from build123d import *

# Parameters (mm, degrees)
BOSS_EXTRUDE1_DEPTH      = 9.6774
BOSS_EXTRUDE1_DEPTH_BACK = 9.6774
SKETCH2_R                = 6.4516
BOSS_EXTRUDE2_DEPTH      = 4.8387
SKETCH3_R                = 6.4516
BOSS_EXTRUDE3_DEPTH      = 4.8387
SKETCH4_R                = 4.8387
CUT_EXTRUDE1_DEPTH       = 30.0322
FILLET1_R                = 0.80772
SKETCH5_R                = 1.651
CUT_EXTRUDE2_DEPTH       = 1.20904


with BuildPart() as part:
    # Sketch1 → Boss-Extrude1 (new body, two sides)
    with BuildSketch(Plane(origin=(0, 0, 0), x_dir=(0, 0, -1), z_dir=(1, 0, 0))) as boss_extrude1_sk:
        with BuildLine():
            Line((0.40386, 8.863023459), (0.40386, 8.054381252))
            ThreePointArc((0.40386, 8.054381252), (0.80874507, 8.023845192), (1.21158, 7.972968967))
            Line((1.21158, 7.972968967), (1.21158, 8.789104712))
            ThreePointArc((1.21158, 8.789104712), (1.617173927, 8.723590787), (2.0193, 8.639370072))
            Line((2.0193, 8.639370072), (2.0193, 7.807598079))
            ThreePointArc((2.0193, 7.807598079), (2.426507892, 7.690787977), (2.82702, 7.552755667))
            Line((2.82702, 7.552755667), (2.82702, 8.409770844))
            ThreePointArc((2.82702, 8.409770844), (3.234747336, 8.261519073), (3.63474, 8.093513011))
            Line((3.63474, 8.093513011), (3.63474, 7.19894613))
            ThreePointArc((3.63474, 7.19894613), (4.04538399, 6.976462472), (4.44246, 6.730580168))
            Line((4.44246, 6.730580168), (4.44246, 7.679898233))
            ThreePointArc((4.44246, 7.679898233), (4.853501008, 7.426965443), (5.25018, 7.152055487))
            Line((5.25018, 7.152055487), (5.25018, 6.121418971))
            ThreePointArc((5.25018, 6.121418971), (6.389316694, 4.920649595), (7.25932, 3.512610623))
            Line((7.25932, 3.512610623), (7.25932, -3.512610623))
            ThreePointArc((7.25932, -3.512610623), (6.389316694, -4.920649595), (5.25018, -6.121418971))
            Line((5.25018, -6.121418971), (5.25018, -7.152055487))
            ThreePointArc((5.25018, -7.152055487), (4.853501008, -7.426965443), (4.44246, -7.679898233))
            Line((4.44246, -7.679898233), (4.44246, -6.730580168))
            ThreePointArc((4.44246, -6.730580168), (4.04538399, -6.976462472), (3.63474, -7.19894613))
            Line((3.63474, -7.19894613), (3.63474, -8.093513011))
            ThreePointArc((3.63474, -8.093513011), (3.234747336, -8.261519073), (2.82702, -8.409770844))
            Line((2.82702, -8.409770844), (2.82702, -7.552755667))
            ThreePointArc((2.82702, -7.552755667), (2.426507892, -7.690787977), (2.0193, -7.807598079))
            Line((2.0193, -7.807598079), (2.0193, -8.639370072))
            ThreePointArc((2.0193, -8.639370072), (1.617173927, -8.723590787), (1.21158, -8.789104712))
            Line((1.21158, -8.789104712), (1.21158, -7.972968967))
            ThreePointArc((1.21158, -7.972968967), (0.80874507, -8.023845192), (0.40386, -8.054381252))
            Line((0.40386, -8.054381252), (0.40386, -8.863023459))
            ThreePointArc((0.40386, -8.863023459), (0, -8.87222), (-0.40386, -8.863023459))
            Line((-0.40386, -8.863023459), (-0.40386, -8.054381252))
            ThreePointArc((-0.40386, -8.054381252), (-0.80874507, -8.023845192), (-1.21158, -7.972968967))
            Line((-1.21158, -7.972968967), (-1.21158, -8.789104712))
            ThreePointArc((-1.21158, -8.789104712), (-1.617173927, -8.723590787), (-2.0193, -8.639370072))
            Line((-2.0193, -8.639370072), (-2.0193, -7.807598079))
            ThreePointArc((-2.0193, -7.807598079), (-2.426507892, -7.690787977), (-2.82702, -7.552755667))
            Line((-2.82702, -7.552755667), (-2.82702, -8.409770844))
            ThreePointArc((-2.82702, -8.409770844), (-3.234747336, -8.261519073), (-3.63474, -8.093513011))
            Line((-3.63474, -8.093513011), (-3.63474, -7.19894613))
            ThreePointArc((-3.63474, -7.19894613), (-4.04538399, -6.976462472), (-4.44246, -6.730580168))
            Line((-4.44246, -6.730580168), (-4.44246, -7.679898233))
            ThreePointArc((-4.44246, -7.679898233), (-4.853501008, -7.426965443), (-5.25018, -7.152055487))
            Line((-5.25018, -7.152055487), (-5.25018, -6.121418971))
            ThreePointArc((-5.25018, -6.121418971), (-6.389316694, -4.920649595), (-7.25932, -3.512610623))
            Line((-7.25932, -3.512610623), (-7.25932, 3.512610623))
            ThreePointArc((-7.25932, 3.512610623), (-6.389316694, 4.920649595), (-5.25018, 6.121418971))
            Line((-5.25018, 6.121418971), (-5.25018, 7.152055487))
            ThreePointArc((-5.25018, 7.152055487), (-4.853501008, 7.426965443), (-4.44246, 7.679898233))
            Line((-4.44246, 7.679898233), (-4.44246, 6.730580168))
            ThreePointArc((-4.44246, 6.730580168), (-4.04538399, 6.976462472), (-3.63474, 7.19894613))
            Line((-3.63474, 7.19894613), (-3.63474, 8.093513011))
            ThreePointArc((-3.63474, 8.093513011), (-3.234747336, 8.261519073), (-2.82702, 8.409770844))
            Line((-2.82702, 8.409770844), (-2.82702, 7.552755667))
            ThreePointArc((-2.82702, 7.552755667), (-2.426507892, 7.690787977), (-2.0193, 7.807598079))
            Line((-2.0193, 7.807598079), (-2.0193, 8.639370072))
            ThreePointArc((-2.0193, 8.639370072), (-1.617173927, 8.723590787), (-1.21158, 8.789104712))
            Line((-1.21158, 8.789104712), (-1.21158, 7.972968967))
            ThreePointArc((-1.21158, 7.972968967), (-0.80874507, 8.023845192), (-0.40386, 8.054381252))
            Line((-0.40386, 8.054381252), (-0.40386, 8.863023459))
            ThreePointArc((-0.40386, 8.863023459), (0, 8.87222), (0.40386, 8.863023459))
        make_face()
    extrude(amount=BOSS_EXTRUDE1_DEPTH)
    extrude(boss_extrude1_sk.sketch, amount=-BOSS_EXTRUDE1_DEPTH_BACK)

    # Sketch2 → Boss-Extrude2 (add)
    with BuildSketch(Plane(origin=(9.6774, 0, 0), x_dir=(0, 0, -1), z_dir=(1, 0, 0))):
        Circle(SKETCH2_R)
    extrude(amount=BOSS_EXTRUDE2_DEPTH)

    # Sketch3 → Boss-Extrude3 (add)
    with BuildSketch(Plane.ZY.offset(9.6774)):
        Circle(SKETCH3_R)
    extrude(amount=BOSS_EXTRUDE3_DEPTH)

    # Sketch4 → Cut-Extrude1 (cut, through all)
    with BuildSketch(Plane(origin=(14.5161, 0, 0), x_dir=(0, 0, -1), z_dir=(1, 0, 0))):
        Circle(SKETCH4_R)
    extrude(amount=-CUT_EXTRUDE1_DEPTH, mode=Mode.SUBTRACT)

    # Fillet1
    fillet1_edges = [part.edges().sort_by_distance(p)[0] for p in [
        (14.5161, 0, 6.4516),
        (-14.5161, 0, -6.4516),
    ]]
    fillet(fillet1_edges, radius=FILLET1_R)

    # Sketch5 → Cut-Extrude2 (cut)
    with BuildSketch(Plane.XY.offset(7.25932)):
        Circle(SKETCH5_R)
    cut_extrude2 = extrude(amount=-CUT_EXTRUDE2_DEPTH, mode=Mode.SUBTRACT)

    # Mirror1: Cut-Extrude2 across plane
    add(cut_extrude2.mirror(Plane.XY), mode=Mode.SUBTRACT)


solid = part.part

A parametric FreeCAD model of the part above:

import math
import FreeCAD as App
import Part
import Sketcher

V = App.Vector
Q = App.Units.Quantity


def edges_at(feature, points):
    """Names of the edges that pass closest to the given points."""
    edges = feature.Shape.Edges
    near = lambda p: min(range(len(edges)), key=lambda i: edges[i].distToShape(Part.Vertex(*p))[0])
    return sorted({f"Edge{near(p) + 1}" for p in points})

doc = App.newDocument("Part")
params = doc.addObject("Spreadsheet::Sheet", "Params")
for row, (alias, value) in enumerate([
    ("pad1_length", "0.381 in"),
    ("pad1_length2", "0.381 in"),
    ("sketch2_diameter", "0.508 in"),
    ("pad2_length", "0.1905 in"),
    ("sketch3_diameter", "0.508 in"),
    ("pad3_length", "0.1905 in"),
    ("sketch4_diameter", "0.381 in"),
    ("fillet_radius", "0.0318 in"),
    ("sketch5_diameter", "0.13 in"),
    ("pocket2_length", "0.0476 in"),
], start=1):
    params.set(f"A{row}", alias)
    params.set(f"B{row}", "=" + value)
    params.setAlias(f"B{row}", alias)

body = doc.addObject("PartDesign::Body", "Body")

sketch1 = doc.addObject("Sketcher::SketchObject", "Sketch")
body.addObject(sketch1)
sketch1.AttachmentSupport = (doc.YZ_Plane, [""])
sketch1.MapMode = "FlatFace"
sketch1.addGeometry([
    Part.LineSegment(V(8.1, -0.4, 0), V(8.9, -0.4, 0)),
    Part.ArcOfCircle(Part.Circle(V(0, 0, 0), V(0, 0, 1), 8.9), math.radians(-2.61), math.radians(2.61)),
    Part.LineSegment(V(8.9, 0.4, 0), V(8.1, 0.4, 0)),
    Part.ArcOfCircle(Part.Circle(V(0, 0, 0), V(0, 0, 1), 8.1), math.radians(2.87), math.radians(8.64)),
    Part.LineSegment(V(8, 1.2, 0), V(8.8, 1.2, 0)),
    Part.ArcOfCircle(Part.Circle(V(0, 0, 0), V(0, 0, 1), 8.9), math.radians(7.85), math.radians(13.16)),
    Part.LineSegment(V(8.6, 2, 0), V(7.8, 2, 0)),
    Part.ArcOfCircle(Part.Circle(V(0, 0, 0), V(0, 0, 1), 8.1), math.radians(14.5), math.radians(20.52)),
    Part.LineSegment(V(7.6, 2.8, 0), V(8.4, 2.8, 0)),
    Part.ArcOfCircle(Part.Circle(V(0, 0, 0), V(0, 0, 1), 8.9), math.radians(18.58), math.radians(24.18)),
    Part.LineSegment(V(8.1, 3.6, 0), V(7.2, 3.6, 0)),
    Part.ArcOfCircle(Part.Circle(V(0, 0, 0), V(0, 0, 1), 8.1), math.radians(26.79), math.radians(33.43)),
    Part.LineSegment(V(6.7, 4.4, 0), V(7.7, 4.4, 0)),
    Part.ArcOfCircle(Part.Circle(V(0, 0, 0), V(0, 0, 1), 8.9), math.radians(30.05), math.radians(36.28)),
    Part.LineSegment(V(7.2, 5.3, 0), V(6.1, 5.3, 0)),
    Part.ArcOfCircle(Part.Circle(V(0, 0, 0), V(0, 0, 1), 8.1), math.radians(41), math.radians(64)),
    Part.LineSegment(V(3.5, 7.3, 0), V(-3.5, 7.3, 0)),
    Part.ArcOfCircle(Part.Circle(V(0, 0, 0), V(0, 0, 1), 8.1), math.radians(116), math.radians(139)),
    Part.LineSegment(V(-6.1, 5.3, 0), V(-7.2, 5.3, 0)),
    Part.ArcOfCircle(Part.Circle(V(0, 0, 0), V(0, 0, 1), 8.9), math.radians(143.72), math.radians(149.95)),
    Part.LineSegment(V(-7.7, 4.4, 0), V(-6.7, 4.4, 0)),
    Part.ArcOfCircle(Part.Circle(V(0, 0, 0), V(0, 0, 1), 8.1), math.radians(146.57), math.radians(153.21)),
    Part.LineSegment(V(-7.2, 3.6, 0), V(-8.1, 3.6, 0)),
    Part.ArcOfCircle(Part.Circle(V(0, 0, 0), V(0, 0, 1), 8.9), math.radians(155.82), math.radians(161.42)),
    Part.LineSegment(V(-8.4, 2.8, 0), V(-7.6, 2.8, 0)),
    Part.ArcOfCircle(Part.Circle(V(0, 0, 0), V(0, 0, 1), 8.1), math.radians(159.48), math.radians(165.5)),
    Part.LineSegment(V(-7.8, 2, 0), V(-8.6, 2, 0)),
    Part.ArcOfCircle(Part.Circle(V(0, 0, 0), V(0, 0, 1), 8.9), math.radians(166.84), math.radians(172.15)),
    Part.LineSegment(V(-8.8, 1.2, 0), V(-8, 1.2, 0)),
    Part.ArcOfCircle(Part.Circle(V(0, 0, 0), V(0, 0, 1), 8.1), math.radians(171.36), math.radians(177.13)),
    Part.LineSegment(V(-8.1, 0.4, 0), V(-8.9, 0.4, 0)),
    Part.ArcOfCircle(Part.Circle(V(0, 0, 0), V(0, 0, 1), 8.9), math.radians(177.39), math.radians(182.61)),
    Part.LineSegment(V(-8.9, -0.4, 0), V(-8.1, -0.4, 0)),
    Part.ArcOfCircle(Part.Circle(V(0, 0, 0), V(0, 0, 1), 8.1), math.radians(-177.13), math.radians(-171.36)),
    Part.LineSegment(V(-8, -1.2, 0), V(-8.8, -1.2, 0)),
    Part.ArcOfCircle(Part.Circle(V(0, 0, 0), V(0, 0, 1), 8.9), math.radians(-172.15), math.radians(-166.84)),
    Part.LineSegment(V(-8.6, -2, 0), V(-7.8, -2, 0)),
    Part.ArcOfCircle(Part.Circle(V(0, 0, 0), V(0, 0, 1), 8.1), math.radians(-165.5), math.radians(-159.48)),
    Part.LineSegment(V(-7.6, -2.8, 0), V(-8.4, -2.8, 0)),
    Part.ArcOfCircle(Part.Circle(V(0, 0, 0), V(0, 0, 1), 8.9), math.radians(-161.42), math.radians(-155.82)),
    Part.LineSegment(V(-8.1, -3.6, 0), V(-7.2, -3.6, 0)),
    Part.ArcOfCircle(Part.Circle(V(0, 0, 0), V(0, 0, 1), 8.1), math.radians(-153.21), math.radians(-146.57)),
    Part.LineSegment(V(-6.7, -4.4, 0), V(-7.7, -4.4, 0)),
    Part.ArcOfCircle(Part.Circle(V(0, 0, 0), V(0, 0, 1), 8.9), math.radians(-149.95), math.radians(-143.72)),
    Part.LineSegment(V(-7.2, -5.3, 0), V(-6.1, -5.3, 0)),
    Part.ArcOfCircle(Part.Circle(V(0, 0, 0), V(0, 0, 1), 8.1), math.radians(-139), math.radians(-116)),
    Part.LineSegment(V(-3.5, -7.3, 0), V(3.5, -7.3, 0)),
    Part.ArcOfCircle(Part.Circle(V(0, 0, 0), V(0, 0, 1), 8.1), math.radians(-64), math.radians(-41)),
    Part.LineSegment(V(6.1, -5.3, 0), V(7.2, -5.3, 0)),
    Part.ArcOfCircle(Part.Circle(V(0, 0, 0), V(0, 0, 1), 8.9), math.radians(-36.28), math.radians(-30.05)),
    Part.LineSegment(V(7.7, -4.4, 0), V(6.7, -4.4, 0)),
    Part.ArcOfCircle(Part.Circle(V(0, 0, 0), V(0, 0, 1), 8.1), math.radians(-33.43), math.radians(-26.79)),
    Part.LineSegment(V(7.2, -3.6, 0), V(8.1, -3.6, 0)),
    Part.ArcOfCircle(Part.Circle(V(0, 0, 0), V(0, 0, 1), 8.9), math.radians(-24.18), math.radians(-18.58)),
    Part.LineSegment(V(8.4, -2.8, 0), V(7.6, -2.8, 0)),
    Part.ArcOfCircle(Part.Circle(V(0, 0, 0), V(0, 0, 1), 8.1), math.radians(-20.52), math.radians(-14.5)),
    Part.LineSegment(V(7.8, -2, 0), V(8.6, -2, 0)),
    Part.ArcOfCircle(Part.Circle(V(0, 0, 0), V(0, 0, 1), 8.9), math.radians(-13.16), math.radians(-7.85)),
    Part.LineSegment(V(8.8, -1.2, 0), V(8, -1.2, 0)),
    Part.ArcOfCircle(Part.Circle(V(0, 0, 0), V(0, 0, 1), 8.1), math.radians(-8.64), math.radians(-2.87)),
], False)
sketch1.addConstraint([
    Sketcher.Constraint("Coincident", 0, 2, 1, 1),
    Sketcher.Constraint("Coincident", 1, 2, 2, 1),
    Sketcher.Constraint("Coincident", 2, 2, 3, 1),
    Sketcher.Constraint("Coincident", 3, 2, 4, 1),
    Sketcher.Constraint("Coincident", 4, 2, 5, 1),
    Sketcher.Constraint("Coincident", 5, 2, 6, 1),
    Sketcher.Constraint("Coincident", 6, 2, 7, 1),
    Sketcher.Constraint("Coincident", 7, 2, 8, 1),
    Sketcher.Constraint("Coincident", 8, 2, 9, 1),
    Sketcher.Constraint("Coincident", 9, 2, 10, 1),
    Sketcher.Constraint("Coincident", 10, 2, 11, 1),
    Sketcher.Constraint("Coincident", 11, 2, 12, 1),
    Sketcher.Constraint("Coincident", 12, 2, 13, 1),
    Sketcher.Constraint("Coincident", 13, 2, 14, 1),
    Sketcher.Constraint("Coincident", 14, 2, 15, 1),
    Sketcher.Constraint("Coincident", 15, 2, 16, 1),
    Sketcher.Constraint("Coincident", 16, 2, 17, 1),
    Sketcher.Constraint("Coincident", 17, 2, 18, 1),
    Sketcher.Constraint("Coincident", 18, 2, 19, 1),
    Sketcher.Constraint("Coincident", 19, 2, 20, 1),
    Sketcher.Constraint("Coincident", 20, 2, 21, 1),
    Sketcher.Constraint("Coincident", 21, 2, 22, 1),
    Sketcher.Constraint("Coincident", 22, 2, 23, 1),
    Sketcher.Constraint("Coincident", 23, 2, 24, 1),
    Sketcher.Constraint("Coincident", 24, 2, 25, 1),
    Sketcher.Constraint("Coincident", 25, 2, 26, 1),
    Sketcher.Constraint("Coincident", 26, 2, 27, 1),
    Sketcher.Constraint("Coincident", 27, 2, 28, 1),
    Sketcher.Constraint("Coincident", 28, 2, 29, 1),
    Sketcher.Constraint("Coincident", 29, 2, 30, 1),
    Sketcher.Constraint("Coincident", 30, 2, 31, 1),
    Sketcher.Constraint("Coincident", 31, 2, 32, 1),
    Sketcher.Constraint("Coincident", 32, 2, 33, 1),
    Sketcher.Constraint("Coincident", 33, 2, 34, 1),
    Sketcher.Constraint("Coincident", 34, 2, 35, 1),
    Sketcher.Constraint("Coincident", 35, 2, 36, 1),
    Sketcher.Constraint("Coincident", 36, 2, 37, 1),
    Sketcher.Constraint("Coincident", 37, 2, 38, 1),
    Sketcher.Constraint("Coincident", 38, 2, 39, 1),
    Sketcher.Constraint("Coincident", 39, 2, 40, 1),
    Sketcher.Constraint("Coincident", 40, 2, 41, 1),
    Sketcher.Constraint("Coincident", 41, 2, 42, 1),
    Sketcher.Constraint("Coincident", 42, 2, 43, 1),
    Sketcher.Constraint("Coincident", 43, 2, 44, 1),
    Sketcher.Constraint("Coincident", 44, 2, 45, 1),
    Sketcher.Constraint("Coincident", 45, 2, 46, 1),
    Sketcher.Constraint("Coincident", 46, 2, 47, 1),
    Sketcher.Constraint("Coincident", 47, 2, 48, 1),
    Sketcher.Constraint("Coincident", 48, 2, 49, 1),
    Sketcher.Constraint("Coincident", 49, 2, 50, 1),
    Sketcher.Constraint("Coincident", 50, 2, 51, 1),
    Sketcher.Constraint("Coincident", 51, 2, 52, 1),
    Sketcher.Constraint("Coincident", 52, 2, 53, 1),
    Sketcher.Constraint("Coincident", 53, 2, 54, 1),
    Sketcher.Constraint("Coincident", 54, 2, 55, 1),
    Sketcher.Constraint("Coincident", 55, 2, 56, 1),
    Sketcher.Constraint("Coincident", 56, 2, 57, 1),
    Sketcher.Constraint("Coincident", 57, 2, 58, 1),
    Sketcher.Constraint("Coincident", 58, 2, 59, 1),
    Sketcher.Constraint("Coincident", 59, 2, 0, 1),
    Sketcher.Constraint("Horizontal", 0),
    Sketcher.Constraint("Horizontal", 2),
    Sketcher.Constraint("Horizontal", 4),
    Sketcher.Constraint("Horizontal", 6),
    Sketcher.Constraint("Horizontal", 8),
    Sketcher.Constraint("Horizontal", 10),
    Sketcher.Constraint("Horizontal", 12),
    Sketcher.Constraint("Horizontal", 14),
    Sketcher.Constraint("Horizontal", 16),
    Sketcher.Constraint("Horizontal", 18),
    Sketcher.Constraint("Horizontal", 20),
    Sketcher.Constraint("Horizontal", 22),
    Sketcher.Constraint("Horizontal", 24),
    Sketcher.Constraint("Horizontal", 26),
    Sketcher.Constraint("Horizontal", 28),
    Sketcher.Constraint("Horizontal", 30),
    Sketcher.Constraint("Horizontal", 32),
    Sketcher.Constraint("Horizontal", 34),
    Sketcher.Constraint("Horizontal", 36),
    Sketcher.Constraint("Horizontal", 38),
    Sketcher.Constraint("Horizontal", 40),
    Sketcher.Constraint("Horizontal", 42),
    Sketcher.Constraint("Horizontal", 44),
    Sketcher.Constraint("Horizontal", 46),
    Sketcher.Constraint("Horizontal", 48),
    Sketcher.Constraint("Horizontal", 50),
    Sketcher.Constraint("Horizontal", 52),
    Sketcher.Constraint("Horizontal", 54),
    Sketcher.Constraint("Horizontal", 56),
    Sketcher.Constraint("Horizontal", 58),
    Sketcher.Constraint("Coincident", 1, 3, -1, 1),
    Sketcher.Constraint("Coincident", 3, 3, -1, 1),
    Sketcher.Constraint("Coincident", 5, 3, -1, 1),
    Sketcher.Constraint("Coincident", 7, 3, -1, 1),
    Sketcher.Constraint("Coincident", 9, 3, -1, 1),
    Sketcher.Constraint("Coincident", 11, 3, -1, 1),
    Sketcher.Constraint("Coincident", 13, 3, -1, 1),
    Sketcher.Constraint("Coincident", 15, 3, -1, 1),
    Sketcher.Constraint("Coincident", 17, 3, -1, 1),
    Sketcher.Constraint("Coincident", 19, 3, -1, 1),
    Sketcher.Constraint("Coincident", 21, 3, -1, 1),
    Sketcher.Constraint("Coincident", 23, 3, -1, 1),
    Sketcher.Constraint("Coincident", 25, 3, -1, 1),
    Sketcher.Constraint("Coincident", 27, 3, -1, 1),
    Sketcher.Constraint("Coincident", 29, 3, -1, 1),
    Sketcher.Constraint("Coincident", 31, 3, -1, 1),
    Sketcher.Constraint("Coincident", 33, 3, -1, 1),
    Sketcher.Constraint("Coincident", 35, 3, -1, 1),
    Sketcher.Constraint("Coincident", 37, 3, -1, 1),
    Sketcher.Constraint("Coincident", 39, 3, -1, 1),
    Sketcher.Constraint("Coincident", 41, 3, -1, 1),
    Sketcher.Constraint("Coincident", 43, 3, -1, 1),
    Sketcher.Constraint("Coincident", 45, 3, -1, 1),
    Sketcher.Constraint("Coincident", 47, 3, -1, 1),
    Sketcher.Constraint("Coincident", 49, 3, -1, 1),
    Sketcher.Constraint("Coincident", 51, 3, -1, 1),
    Sketcher.Constraint("Coincident", 53, 3, -1, 1),
    Sketcher.Constraint("Coincident", 55, 3, -1, 1),
    Sketcher.Constraint("Coincident", 57, 3, -1, 1),
    Sketcher.Constraint("Coincident", 59, 3, -1, 1),
    Sketcher.Constraint("Equal", 1, 5),
    Sketcher.Constraint("Equal", 3, 7),
    Sketcher.Constraint("Equal", 5, 9),
    Sketcher.Constraint("Equal", 7, 11),
    Sketcher.Constraint("Equal", 9, 13),
    Sketcher.Constraint("Equal", 11, 15),
    Sketcher.Constraint("Equal", 15, 17),
    Sketcher.Constraint("Equal", 13, 19),
    Sketcher.Constraint("Equal", 17, 21),
    Sketcher.Constraint("Equal", 19, 23),
    Sketcher.Constraint("Equal", 21, 25),
    Sketcher.Constraint("Equal", 23, 27),
    Sketcher.Constraint("Equal", 25, 29),
    Sketcher.Constraint("Equal", 27, 31),
    Sketcher.Constraint("Equal", 29, 33),
    Sketcher.Constraint("Equal", 31, 35),
    Sketcher.Constraint("Equal", 33, 37),
    Sketcher.Constraint("Equal", 35, 39),
    Sketcher.Constraint("Equal", 37, 41),
    Sketcher.Constraint("Equal", 39, 43),
    Sketcher.Constraint("Equal", 41, 45),
    Sketcher.Constraint("Equal", 45, 47),
    Sketcher.Constraint("Equal", 43, 49),
    Sketcher.Constraint("Equal", 47, 51),
    Sketcher.Constraint("Equal", 49, 53),
    Sketcher.Constraint("Equal", 51, 55),
    Sketcher.Constraint("Equal", 53, 57),
    Sketcher.Constraint("Equal", 55, 59),
    Sketcher.Constraint("Horizontal", 14, 2, 17, 2),
    Sketcher.Constraint("Horizontal", 12, 2, 19, 2),
    Sketcher.Constraint("Horizontal", 10, 2, 21, 2),
    Sketcher.Constraint("Horizontal", 8, 2, 23, 2),
    Sketcher.Constraint("Horizontal", 6, 2, 25, 2),
    Sketcher.Constraint("Horizontal", 4, 2, 27, 2),
    Sketcher.Constraint("Horizontal", 2, 2, 29, 2),
    Sketcher.Constraint("Horizontal", 0, 2, 31, 2),
    Sketcher.Constraint("Horizontal", 44, 2, 47, 2),
    Sketcher.Constraint("Horizontal", 42, 2, 49, 2),
    Sketcher.Constraint("Horizontal", 40, 2, 51, 2),
    Sketcher.Constraint("Horizontal", 38, 2, 53, 2),
    Sketcher.Constraint("Horizontal", 36, 2, 55, 2),
    Sketcher.Constraint("Horizontal", 34, 2, 57, 2),
    Sketcher.Constraint("Vertical", 0, 2, 1, 2),
    Sketcher.Constraint("Vertical", 28, 2, 33, 2),
    Sketcher.Constraint("Vertical", 26, 2, 35, 2),
    Sketcher.Constraint("Vertical", 24, 2, 37, 2),
    Sketcher.Constraint("Vertical", 22, 2, 39, 2),
    Sketcher.Constraint("Vertical", 20, 2, 41, 2),
    Sketcher.Constraint("Vertical", 18, 2, 43, 2),
    Sketcher.Constraint("Vertical", 16, 2, 45, 2),
    Sketcher.Constraint("Radius", 1, Q("0.3493 in")),
    Sketcher.Constraint("Radius", 3, Q("0.3175 in")),
    Sketcher.Constraint("DistanceY", 0, 2, -1, 1, Q("0.0159 in")),
    Sketcher.Constraint("DistanceY", -1, 1, 3, 2, Q("0.0477 in")),
    Sketcher.Constraint("DistanceY", -1, 1, 5, 2, Q("0.0795 in")),
    Sketcher.Constraint("DistanceY", -1, 1, 7, 2, Q("0.1113 in")),
    Sketcher.Constraint("DistanceY", -1, 1, 9, 2, Q("0.1431 in")),
    Sketcher.Constraint("DistanceY", -1, 1, 11, 2, Q("0.1749 in")),
    Sketcher.Constraint("DistanceY", -1, 1, 13, 2, Q("0.2067 in")),
    Sketcher.Constraint("DistanceY", -1, 1, 15, 2, Q("0.2858 in")),
])
pad1 = doc.addObject("PartDesign::Pad", "Pad")
body.addObject(pad1)
pad1.Profile = sketch1
pad1.Type = "TwoLengths"
pad1.setExpression("Length", "Params.pad1_length")
pad1.setExpression("Length2", "Params.pad1_length2")

sketch2 = doc.addObject("Sketcher::SketchObject", "Sketch001")
body.addObject(sketch2)
sketch2.AttachmentSupport = (doc.YZ_Plane, [""])
sketch2.MapMode = "FlatFace"
sketch2.AttachmentOffset = App.Placement(V(0, 0, 0.381 * 25.4), App.Rotation())
sketch2.addGeometry(Part.Circle(V(0, 0, 0), V(0, 0, 1), 6), False)
sketch2.addConstraint([
    Sketcher.Constraint("Coincident", 0, 3, -1, 1),
    Sketcher.Constraint("Diameter", 0, Q("0.508 in")),
])
sketch2.setExpression("Constraints[1]", "Params.sketch2_diameter")
pad2 = doc.addObject("PartDesign::Pad", "Pad001")
body.addObject(pad2)
pad2.Profile = sketch2
pad2.setExpression("Length", "Params.pad2_length")

sketch3 = doc.addObject("Sketcher::SketchObject", "Sketch002")
body.addObject(sketch3)
sketch3.AttachmentSupport = (doc.YZ_Plane, [""])
sketch3.MapMode = "FlatFace"
sketch3.AttachmentOffset = App.Placement(V(0, 0, -0.381 * 25.4), App.Rotation())
sketch3.addGeometry(Part.Circle(V(0, 0, 0), V(0, 0, 1), 6), False)
sketch3.addConstraint([
    Sketcher.Constraint("Coincident", 0, 3, -1, 1),
    Sketcher.Constraint("Diameter", 0, Q("0.508 in")),
])
sketch3.setExpression("Constraints[1]", "Params.sketch3_diameter")
pad3 = doc.addObject("PartDesign::Pad", "Pad002")
body.addObject(pad3)
pad3.Profile = sketch3
pad3.setExpression("Length", "Params.pad3_length")
pad3.Reversed = True

sketch4 = doc.addObject("Sketcher::SketchObject", "Sketch003")
body.addObject(sketch4)
sketch4.AttachmentSupport = (doc.YZ_Plane, [""])
sketch4.MapMode = "FlatFace"
sketch4.AttachmentOffset = App.Placement(V(0, 0, 0.5715 * 25.4), App.Rotation())
sketch4.addGeometry(Part.Circle(V(0, 0, 0), V(0, 0, 1), 4.8), False)
sketch4.addConstraint([
    Sketcher.Constraint("Coincident", 0, 3, -1, 1),
    Sketcher.Constraint("Diameter", 0, Q("0.381 in")),
])
sketch4.setExpression("Constraints[1]", "Params.sketch4_diameter")
pocket1 = doc.addObject("PartDesign::Pocket", "Pocket")
body.addObject(pocket1)
pocket1.Profile = sketch4
pocket1.Type = "ThroughAll"
doc.recompute()

fillet = doc.addObject("PartDesign::Fillet", "Fillet")
body.addObject(fillet)
fillet.Base = (pocket1, edges_at(pocket1, [(14.516, 0, 6.452), (-14.516, 0, -6.452)]))
fillet.setExpression("Radius", "Params.fillet_radius")

sketch5 = doc.addObject("Sketcher::SketchObject", "Sketch004")
body.addObject(sketch5)
sketch5.AttachmentSupport = (doc.XY_Plane, [""])
sketch5.MapMode = "FlatFace"
sketch5.AttachmentOffset = App.Placement(V(0, 0, 0.2858 * 25.4), App.Rotation())
sketch5.addGeometry(Part.Circle(V(0, 0, 0), V(0, 0, 1), 1.7), False)
sketch5.addConstraint([
    Sketcher.Constraint("Coincident", 0, 3, -1, 1),
    Sketcher.Constraint("Diameter", 0, Q("0.13 in")),
])
sketch5.setExpression("Constraints[1]", "Params.sketch5_diameter")
pocket2 = doc.addObject("PartDesign::Pocket", "Pocket001")
body.addObject(pocket2)
pocket2.Profile = sketch5
pocket2.setExpression("Length", "Params.pocket2_length")
doc.recompute()

mirrored = doc.addObject("PartDesign::Mirrored", "Mirrored")
body.addObject(mirrored)
mirrored.Originals = [pocket2]
mirrored.MirrorPlane = (doc.XY_Plane, [""])
body.Tip = mirrored

doc.recompute()
